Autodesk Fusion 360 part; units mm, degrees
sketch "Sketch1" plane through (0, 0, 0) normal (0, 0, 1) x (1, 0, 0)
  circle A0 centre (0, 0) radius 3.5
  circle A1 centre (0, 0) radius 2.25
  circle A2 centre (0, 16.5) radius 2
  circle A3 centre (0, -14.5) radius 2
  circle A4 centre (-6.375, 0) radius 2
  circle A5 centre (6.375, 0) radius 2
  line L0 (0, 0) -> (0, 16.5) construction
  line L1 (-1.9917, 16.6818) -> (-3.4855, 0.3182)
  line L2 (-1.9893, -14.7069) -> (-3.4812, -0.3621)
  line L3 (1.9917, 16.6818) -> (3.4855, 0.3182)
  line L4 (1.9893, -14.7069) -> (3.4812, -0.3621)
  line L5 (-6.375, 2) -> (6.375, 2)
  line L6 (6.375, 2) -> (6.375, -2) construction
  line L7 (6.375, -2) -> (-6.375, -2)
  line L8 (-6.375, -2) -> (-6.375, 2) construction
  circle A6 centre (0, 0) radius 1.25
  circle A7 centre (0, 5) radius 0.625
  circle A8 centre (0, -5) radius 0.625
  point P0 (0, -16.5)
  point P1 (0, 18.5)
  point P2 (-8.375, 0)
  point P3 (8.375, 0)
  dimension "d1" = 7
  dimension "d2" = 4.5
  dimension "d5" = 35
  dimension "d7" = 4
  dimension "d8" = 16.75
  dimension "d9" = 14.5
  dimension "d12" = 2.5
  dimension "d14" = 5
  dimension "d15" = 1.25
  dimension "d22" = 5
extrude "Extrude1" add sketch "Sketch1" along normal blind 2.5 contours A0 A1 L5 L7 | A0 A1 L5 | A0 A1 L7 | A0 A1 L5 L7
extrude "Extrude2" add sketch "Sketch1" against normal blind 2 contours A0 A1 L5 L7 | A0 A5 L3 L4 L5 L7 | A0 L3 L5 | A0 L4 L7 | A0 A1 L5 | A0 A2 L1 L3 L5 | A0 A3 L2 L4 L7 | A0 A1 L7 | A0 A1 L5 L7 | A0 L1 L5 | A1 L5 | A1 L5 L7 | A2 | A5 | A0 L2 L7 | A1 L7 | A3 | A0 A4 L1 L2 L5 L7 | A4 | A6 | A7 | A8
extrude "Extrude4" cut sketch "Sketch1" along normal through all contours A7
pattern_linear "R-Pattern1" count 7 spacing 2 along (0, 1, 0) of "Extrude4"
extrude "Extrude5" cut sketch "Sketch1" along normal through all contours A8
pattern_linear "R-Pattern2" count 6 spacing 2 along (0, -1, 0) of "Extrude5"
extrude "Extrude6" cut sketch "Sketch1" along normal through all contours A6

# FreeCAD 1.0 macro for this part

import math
import FreeCAD as App
import Part
import Sketcher

V = App.Vector

doc = App.newDocument("Part")
body = doc.addObject("PartDesign::Body", "Body")

sketch1 = body.newObject("Sketcher::SketchObject", "Sketch")
sketch1.AttachmentSupport = (doc.getObject("XY_Plane"), [""])
sketch1.MapMode = "FlatFace"
sketch1.addGeometry([
    Part.Circle(V(0, 0, 0), V(0, 0, 1), 3.5),
    Part.Circle(V(0, 0, 0), V(0, 0, 1), 2.2),
], False)
sketch1.addConstraint([
    Sketcher.Constraint("Coincident", 0, 3, -1, 1),
    Sketcher.Constraint("Coincident", 1, 3, -1, 1),
    Sketcher.Constraint("Diameter", 0, 7.0),
    Sketcher.Constraint("Diameter", 1, 4.5),
])
pad1 = body.newObject("PartDesign::Pad", "Pad")
pad1.Profile = sketch1
pad1.Length = 2.5

sketch2 = body.newObject("Sketcher::SketchObject", "Sketch001")
sketch2.AttachmentSupport = (doc.getObject("XY_Plane"), [""])
sketch2.MapMode = "FlatFace"
sketch2.addGeometry([
    Part.LineSegment(V(6.4, 2, 0), V(3.3, 2, 0)),
    Part.LineSegment(V(3.3, 2, 0), V(2, 16.7, 0)),
    Part.ArcOfCircle(Part.Circle(V(0, 16.5, 0), V(0, 0, 1), 2), math.radians(5), math.radians(175)),
    Part.LineSegment(V(-2, 16.7, 0), V(-3.3, 2, 0)),
    Part.LineSegment(V(-3.3, 2, 0), V(-6.4, 2, 0)),
    Part.ArcOfCircle(Part.Circle(V(-6.4, 0, 0), V(0, 0, 1), 2), math.radians(90), math.radians(270)),
    Part.LineSegment(V(-6.4, -2, 0), V(-3.3, -2, 0)),
    Part.LineSegment(V(-3.3, -2, 0), V(-2, -14.7, 0)),
    Part.ArcOfCircle(Part.Circle(V(0, -14.5, 0), V(0, 0, 1), 2), math.radians(-174), math.radians(-6)),
    Part.LineSegment(V(2, -14.7, 0), V(3.3, -2, 0)),
    Part.LineSegment(V(3.3, -2, 0), V(6.4, -2, 0)),
    Part.ArcOfCircle(Part.Circle(V(6.4, 0, 0), V(0, 0, 1), 2), math.radians(-90), math.radians(90)),
], False)
sketch2.addConstraint([
    Sketcher.Constraint("Coincident", 0, 2, 1, 1),
    Sketcher.Constraint("Tangent", 1, 2, 2, 1),
    Sketcher.Constraint("Tangent", 2, 2, 3, 1),
    Sketcher.Constraint("Coincident", 3, 2, 4, 1),
    Sketcher.Constraint("Tangent", 4, 2, 5, 1),
    Sketcher.Constraint("Tangent", 5, 2, 6, 1),
    Sketcher.Constraint("Coincident", 6, 2, 7, 1),
    Sketcher.Constraint("Tangent", 7, 2, 8, 1),
    Sketcher.Constraint("Tangent", 8, 2, 9, 1),
    Sketcher.Constraint("Coincident", 9, 2, 10, 1),
    Sketcher.Constraint("Tangent", 10, 2, 11, 1),
    Sketcher.Constraint("Tangent", 11, 2, 0, 1),
    Sketcher.Constraint("Horizontal", 0),
    Sketcher.Constraint("Horizontal", 4),
    Sketcher.Constraint("Horizontal", 6),
    Sketcher.Constraint("Horizontal", 10),
    Sketcher.Constraint("Equal", 2, 5),
    Sketcher.Constraint("Equal", 5, 8),
    Sketcher.Constraint("Equal", 8, 11),
    Sketcher.Constraint("Symmetric", 5, 3, 11, 3, -1, 1),
    Sketcher.Constraint("Symmetric", 1, 2, 2, 2, -2),
    Sketcher.Constraint("Symmetric", 7, 2, 8, 2, -2),
    Sketcher.Constraint("PointOnObject", 5, 3, -1),
    Sketcher.Constraint("Radius", 2, 2.0),
    Sketcher.Constraint("DistanceY", 8, 3, -1, 1, 14.5),
    Sketcher.Constraint("DistanceY", 0, 2, 2, 3, 14.5),
    Sketcher.Constraint("DistanceX", 0, 2, 0, 1, 3.043),
    Sketcher.Constraint("DistanceX", 5, 3, 11, 3, 12.75),
    Sketcher.Constraint("DistanceX", 6, 1, 6, 2, 3.0641),
])
pad2 = body.newObject("PartDesign::Pad", "Pad001")
pad2.Profile = sketch2
pad2.Length = 2
pad2.Reversed = True

sketch3 = body.newObject("Sketcher::SketchObject", "Sketch002")
sketch3.AttachmentSupport = (doc.getObject("XY_Plane"), [""])
sketch3.MapMode = "FlatFace"
sketch3.addGeometry(Part.Circle(V(0, 5, 0), V(0, 0, 1), 0.6), False)
sketch3.addConstraint([
    Sketcher.Constraint("PointOnObject", 0, 3, -2),
    Sketcher.Constraint("Diameter", 0, 1.25),
    Sketcher.Constraint("DistanceY", -1, 1, 0, 3, 5.0),
])
pocket1 = body.newObject("PartDesign::Pocket", "Pocket")
pocket1.Profile = sketch3
pocket1.Type = "ThroughAll"
pocket1.Reversed = True
doc.recompute()

linearpattern = body.newObject("PartDesign::LinearPattern", "LinearPattern")
linearpattern.Originals = [pocket1]
linearpattern.Direction = (doc.getObject("Y_Axis"), [""])
linearpattern.Mode = "offset"
linearpattern.Offset = 2
linearpattern.Occurrences = 7
body.Tip = linearpattern

sketch4 = body.newObject("Sketcher::SketchObject", "Sketch003")
sketch4.AttachmentSupport = (doc.getObject("XY_Plane"), [""])
sketch4.MapMode = "FlatFace"
sketch4.addGeometry(Part.Circle(V(0, -5, 0), V(0, 0, 1), 0.6), False)
sketch4.addConstraint([
    Sketcher.Constraint("PointOnObject", 0, 3, -2),
    Sketcher.Constraint("Diameter", 0, 1.25),
    Sketcher.Constraint("DistanceY", 0, 3, -1, 1, 5.0),
])
pocket2 = body.newObject("PartDesign::Pocket", "Pocket001")
pocket2.Profile = sketch4
pocket2.Type = "ThroughAll"
pocket2.Reversed = True
doc.recompute()

linearpattern2 = body.newObject("PartDesign::LinearPattern", "LinearPattern001")
linearpattern2.Originals = [pocket2]
linearpattern2.Direction = (doc.getObject("Y_Axis"), [""])
linearpattern2.Mode = "offset"
linearpattern2.Offset = 2
linearpattern2.Occurrences = 6
linearpattern2.Reversed = True
body.Tip = linearpattern2

sketch5 = body.newObject("Sketcher::SketchObject", "Sketch004")
sketch5.AttachmentSupport = (doc.getObject("XY_Plane"), [""])
sketch5.MapMode = "FlatFace"
sketch5.addGeometry(Part.Circle(V(0, 0, 0), V(0, 0, 1), 1.2), False)
sketch5.addConstraint([
    Sketcher.Constraint("Coincident", 0, 3, -1, 1),
    Sketcher.Constraint("Diameter", 0, 2.5),
])
pocket3 = body.newObject("PartDesign::Pocket", "Pocket002")
pocket3.Profile = sketch5
pocket3.Type = "ThroughAll"
pocket3.Reversed = True

doc.recompute()
